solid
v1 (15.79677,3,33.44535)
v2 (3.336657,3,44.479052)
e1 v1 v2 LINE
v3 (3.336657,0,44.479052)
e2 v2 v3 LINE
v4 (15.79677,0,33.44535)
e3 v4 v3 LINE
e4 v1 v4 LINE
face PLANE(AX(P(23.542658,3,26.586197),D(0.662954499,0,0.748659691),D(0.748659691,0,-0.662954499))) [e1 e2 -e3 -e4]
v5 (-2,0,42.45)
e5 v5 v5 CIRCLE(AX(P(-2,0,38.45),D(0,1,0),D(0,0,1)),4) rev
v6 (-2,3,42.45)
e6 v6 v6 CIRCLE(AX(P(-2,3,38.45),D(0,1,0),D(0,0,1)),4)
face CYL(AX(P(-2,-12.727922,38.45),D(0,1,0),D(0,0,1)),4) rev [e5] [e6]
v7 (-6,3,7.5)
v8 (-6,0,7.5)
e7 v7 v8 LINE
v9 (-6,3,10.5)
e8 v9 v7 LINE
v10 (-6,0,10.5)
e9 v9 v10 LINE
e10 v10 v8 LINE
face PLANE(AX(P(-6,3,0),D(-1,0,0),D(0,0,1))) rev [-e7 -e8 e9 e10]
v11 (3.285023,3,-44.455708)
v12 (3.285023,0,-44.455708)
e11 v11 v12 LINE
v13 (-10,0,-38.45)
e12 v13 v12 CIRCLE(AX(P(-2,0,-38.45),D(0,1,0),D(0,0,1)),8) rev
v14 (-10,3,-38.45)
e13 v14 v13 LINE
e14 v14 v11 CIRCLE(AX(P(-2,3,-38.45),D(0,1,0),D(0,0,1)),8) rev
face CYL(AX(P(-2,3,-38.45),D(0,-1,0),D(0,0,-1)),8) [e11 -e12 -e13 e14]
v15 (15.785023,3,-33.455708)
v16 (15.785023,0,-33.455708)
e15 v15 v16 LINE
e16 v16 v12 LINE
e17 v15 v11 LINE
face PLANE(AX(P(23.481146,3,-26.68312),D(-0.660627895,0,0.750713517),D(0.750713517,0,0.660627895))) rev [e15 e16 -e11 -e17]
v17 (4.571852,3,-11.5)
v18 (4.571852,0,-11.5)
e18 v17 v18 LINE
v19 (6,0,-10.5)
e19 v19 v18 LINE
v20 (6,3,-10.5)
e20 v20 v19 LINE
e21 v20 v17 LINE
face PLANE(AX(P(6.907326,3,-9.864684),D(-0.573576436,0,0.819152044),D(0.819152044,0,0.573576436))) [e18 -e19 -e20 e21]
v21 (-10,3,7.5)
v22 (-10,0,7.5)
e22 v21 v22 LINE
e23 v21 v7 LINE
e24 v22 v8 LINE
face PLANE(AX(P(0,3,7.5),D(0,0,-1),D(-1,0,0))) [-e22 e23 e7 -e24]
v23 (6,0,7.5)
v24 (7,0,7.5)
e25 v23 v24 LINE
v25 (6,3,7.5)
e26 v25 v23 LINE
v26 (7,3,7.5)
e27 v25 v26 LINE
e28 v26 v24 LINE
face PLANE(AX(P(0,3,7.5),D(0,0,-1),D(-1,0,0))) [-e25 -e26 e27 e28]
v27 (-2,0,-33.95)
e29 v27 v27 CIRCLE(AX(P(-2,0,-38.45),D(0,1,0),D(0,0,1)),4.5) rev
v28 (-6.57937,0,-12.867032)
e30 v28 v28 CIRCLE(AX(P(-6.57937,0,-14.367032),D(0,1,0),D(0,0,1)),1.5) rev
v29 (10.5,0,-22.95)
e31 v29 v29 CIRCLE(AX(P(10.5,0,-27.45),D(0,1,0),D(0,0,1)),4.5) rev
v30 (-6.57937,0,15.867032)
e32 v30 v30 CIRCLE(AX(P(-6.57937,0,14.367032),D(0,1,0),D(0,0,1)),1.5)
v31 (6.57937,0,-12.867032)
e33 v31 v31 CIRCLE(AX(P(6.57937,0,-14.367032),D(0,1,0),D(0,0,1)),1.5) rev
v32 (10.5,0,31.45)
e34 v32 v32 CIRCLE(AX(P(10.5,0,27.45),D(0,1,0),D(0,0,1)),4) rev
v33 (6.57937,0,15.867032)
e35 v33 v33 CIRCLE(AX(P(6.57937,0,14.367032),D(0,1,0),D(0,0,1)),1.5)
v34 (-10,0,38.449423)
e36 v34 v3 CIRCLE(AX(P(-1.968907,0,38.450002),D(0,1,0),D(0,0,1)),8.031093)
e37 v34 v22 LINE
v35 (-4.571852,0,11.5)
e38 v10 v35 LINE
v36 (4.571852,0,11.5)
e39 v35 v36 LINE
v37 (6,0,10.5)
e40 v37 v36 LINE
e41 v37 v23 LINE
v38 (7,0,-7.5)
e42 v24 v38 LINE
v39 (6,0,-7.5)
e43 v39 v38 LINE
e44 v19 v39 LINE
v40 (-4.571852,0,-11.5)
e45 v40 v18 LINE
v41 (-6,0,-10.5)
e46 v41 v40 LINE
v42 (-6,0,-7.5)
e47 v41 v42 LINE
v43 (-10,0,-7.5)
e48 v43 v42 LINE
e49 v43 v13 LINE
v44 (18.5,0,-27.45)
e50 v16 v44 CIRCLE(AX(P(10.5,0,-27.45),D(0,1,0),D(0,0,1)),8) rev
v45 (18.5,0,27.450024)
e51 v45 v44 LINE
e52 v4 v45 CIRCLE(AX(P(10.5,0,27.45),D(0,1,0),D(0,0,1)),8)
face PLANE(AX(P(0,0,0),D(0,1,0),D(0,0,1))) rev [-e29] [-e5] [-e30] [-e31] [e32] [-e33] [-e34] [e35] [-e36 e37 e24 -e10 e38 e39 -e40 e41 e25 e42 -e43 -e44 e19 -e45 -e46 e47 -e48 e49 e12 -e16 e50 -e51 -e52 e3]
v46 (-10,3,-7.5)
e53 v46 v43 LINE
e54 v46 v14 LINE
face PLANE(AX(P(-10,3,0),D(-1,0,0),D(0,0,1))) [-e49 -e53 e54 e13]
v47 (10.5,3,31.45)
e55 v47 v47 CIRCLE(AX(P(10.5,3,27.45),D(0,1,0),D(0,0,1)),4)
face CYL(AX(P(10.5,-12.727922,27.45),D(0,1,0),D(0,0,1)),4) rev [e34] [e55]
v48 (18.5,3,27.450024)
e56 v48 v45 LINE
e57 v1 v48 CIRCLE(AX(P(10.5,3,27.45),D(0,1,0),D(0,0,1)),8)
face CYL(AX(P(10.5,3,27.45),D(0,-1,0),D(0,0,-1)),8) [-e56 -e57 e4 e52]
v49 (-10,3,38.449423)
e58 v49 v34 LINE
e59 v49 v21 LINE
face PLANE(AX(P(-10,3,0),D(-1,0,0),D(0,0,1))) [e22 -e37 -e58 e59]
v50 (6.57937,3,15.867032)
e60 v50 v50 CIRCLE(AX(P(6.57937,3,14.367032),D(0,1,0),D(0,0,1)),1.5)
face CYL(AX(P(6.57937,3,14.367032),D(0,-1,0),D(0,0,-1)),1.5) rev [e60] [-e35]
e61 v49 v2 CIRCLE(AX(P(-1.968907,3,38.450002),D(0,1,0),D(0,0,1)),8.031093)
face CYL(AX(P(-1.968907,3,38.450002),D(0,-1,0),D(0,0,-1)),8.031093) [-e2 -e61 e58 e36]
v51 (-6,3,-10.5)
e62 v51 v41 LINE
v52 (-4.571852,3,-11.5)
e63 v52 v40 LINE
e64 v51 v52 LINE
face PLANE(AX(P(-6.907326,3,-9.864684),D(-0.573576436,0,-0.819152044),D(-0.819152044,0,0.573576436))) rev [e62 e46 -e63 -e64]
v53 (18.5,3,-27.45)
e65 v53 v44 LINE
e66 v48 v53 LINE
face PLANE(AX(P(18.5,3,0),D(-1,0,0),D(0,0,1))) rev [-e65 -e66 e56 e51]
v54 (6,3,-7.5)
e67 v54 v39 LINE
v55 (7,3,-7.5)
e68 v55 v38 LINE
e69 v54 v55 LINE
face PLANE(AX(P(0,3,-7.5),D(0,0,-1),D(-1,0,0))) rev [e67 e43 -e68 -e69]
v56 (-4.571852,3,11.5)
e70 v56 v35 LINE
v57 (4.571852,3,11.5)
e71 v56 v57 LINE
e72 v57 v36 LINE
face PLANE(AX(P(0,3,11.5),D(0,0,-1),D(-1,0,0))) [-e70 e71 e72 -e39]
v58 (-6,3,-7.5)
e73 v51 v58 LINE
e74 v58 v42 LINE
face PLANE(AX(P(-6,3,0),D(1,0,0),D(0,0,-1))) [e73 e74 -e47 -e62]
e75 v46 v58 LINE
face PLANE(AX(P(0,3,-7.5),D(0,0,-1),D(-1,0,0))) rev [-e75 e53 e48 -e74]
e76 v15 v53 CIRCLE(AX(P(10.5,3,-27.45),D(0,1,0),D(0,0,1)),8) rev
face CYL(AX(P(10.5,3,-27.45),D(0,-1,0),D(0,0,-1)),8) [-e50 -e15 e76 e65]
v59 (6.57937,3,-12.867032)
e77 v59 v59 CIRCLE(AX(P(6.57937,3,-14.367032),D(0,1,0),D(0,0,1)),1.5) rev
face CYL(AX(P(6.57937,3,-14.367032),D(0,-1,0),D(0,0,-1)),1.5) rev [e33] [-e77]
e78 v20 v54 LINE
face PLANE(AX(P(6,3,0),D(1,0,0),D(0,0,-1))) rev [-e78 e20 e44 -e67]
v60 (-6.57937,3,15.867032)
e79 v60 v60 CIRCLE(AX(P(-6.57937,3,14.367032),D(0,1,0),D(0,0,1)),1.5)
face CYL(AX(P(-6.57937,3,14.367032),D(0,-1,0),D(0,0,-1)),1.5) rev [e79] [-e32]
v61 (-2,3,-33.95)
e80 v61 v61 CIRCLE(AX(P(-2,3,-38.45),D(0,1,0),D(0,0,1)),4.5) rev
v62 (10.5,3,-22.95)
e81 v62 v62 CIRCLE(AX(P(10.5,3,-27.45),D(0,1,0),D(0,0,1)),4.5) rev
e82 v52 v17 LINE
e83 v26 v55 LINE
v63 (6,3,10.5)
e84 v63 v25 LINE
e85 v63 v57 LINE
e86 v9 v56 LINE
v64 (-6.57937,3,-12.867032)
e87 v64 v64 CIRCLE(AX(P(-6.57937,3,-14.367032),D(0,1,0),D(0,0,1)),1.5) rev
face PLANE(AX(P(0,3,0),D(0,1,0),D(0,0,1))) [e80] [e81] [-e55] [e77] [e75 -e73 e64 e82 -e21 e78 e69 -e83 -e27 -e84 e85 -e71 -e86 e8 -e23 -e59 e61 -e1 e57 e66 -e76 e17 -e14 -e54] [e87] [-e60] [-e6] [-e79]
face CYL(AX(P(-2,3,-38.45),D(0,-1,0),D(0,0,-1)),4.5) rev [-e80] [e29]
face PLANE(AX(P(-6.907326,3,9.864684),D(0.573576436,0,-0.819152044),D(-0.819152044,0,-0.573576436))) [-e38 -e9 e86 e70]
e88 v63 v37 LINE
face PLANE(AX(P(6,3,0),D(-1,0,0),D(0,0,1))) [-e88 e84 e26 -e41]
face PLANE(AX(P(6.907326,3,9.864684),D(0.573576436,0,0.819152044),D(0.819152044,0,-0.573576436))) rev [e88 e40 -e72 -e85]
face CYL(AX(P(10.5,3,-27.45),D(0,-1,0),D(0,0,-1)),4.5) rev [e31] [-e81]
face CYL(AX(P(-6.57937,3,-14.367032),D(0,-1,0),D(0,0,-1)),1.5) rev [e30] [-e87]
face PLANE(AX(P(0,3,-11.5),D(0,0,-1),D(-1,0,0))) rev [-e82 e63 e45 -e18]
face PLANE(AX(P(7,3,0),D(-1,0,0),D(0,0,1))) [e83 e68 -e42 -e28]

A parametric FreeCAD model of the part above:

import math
import FreeCAD as App
import Part
import Sketcher
from FreeCAD import Vector
Q = App.Units.Quantity

doc = App.newDocument("Part")
body = doc.addObject("PartDesign::Body", "Body")

# Sketch on XZ plane
sketch1 = body.newObject("Sketcher::SketchObject", "Sketch")
sketch1.AttachmentSupport = (doc.getObject("XZ_Plane"), [""])
sketch1.MapMode = "FlatFace"
sketch1.addGeometry([
    Part.LineSegment(Vector(-6, 7.5, 0), Vector(-10, 7.5, 0)),  # 0
    Part.LineSegment(Vector(-10, 7.5, 0), Vector(-10, 38.4, 0)),  # 1
    Part.ArcOfCircle(Part.Circle(Vector(-2, 38.5, 0), Vector(0, 0, 1), 8), math.radians(49), math.radians(180)),  # 2
    Part.LineSegment(Vector(3.3, 44.5, 0), Vector(15.8, 33.4, 0)),  # 3
    Part.ArcOfCircle(Part.Circle(Vector(10.5, 27.4, 0), Vector(0, 0, 1), 8), math.radians(0), math.radians(49)),  # 4
    Part.LineSegment(Vector(18.5, 27.5, 0), Vector(18.5, -27.4, 0)),  # 5
    Part.ArcOfCircle(Part.Circle(Vector(10.5, -27.4, 0), Vector(0, 0, 1), 8), math.radians(-49), math.radians(0)),  # 6
    Part.LineSegment(Vector(15.8, -33.5, 0), Vector(3.3, -44.5, 0)),  # 7
    Part.ArcOfCircle(Part.Circle(Vector(-2, -38.4, 0), Vector(0, 0, 1), 8), math.radians(-180), math.radians(-49)),  # 8
    Part.LineSegment(Vector(-10, -38.5, 0), Vector(-10, -7.5, 0)),  # 9
    Part.LineSegment(Vector(-10, -7.5, 0), Vector(-6, -7.5, 0)),  # 10
    Part.LineSegment(Vector(-6, -7.5, 0), Vector(-6, -10.5, 0)),  # 11
    Part.LineSegment(Vector(-6, -10.5, 0), Vector(-4.6, -11.5, 0)),  # 12
    Part.LineSegment(Vector(-4.6, -11.5, 0), Vector(4.6, -11.5, 0)),  # 13
    Part.LineSegment(Vector(4.6, -11.5, 0), Vector(6, -10.5, 0)),  # 14
    Part.LineSegment(Vector(6, -10.5, 0), Vector(6, -7.5, 0)),  # 15
    Part.LineSegment(Vector(6, -7.5, 0), Vector(7, -7.5, 0)),  # 16
    Part.LineSegment(Vector(7, -7.5, 0), Vector(7, 7.5, 0)),  # 17
    Part.LineSegment(Vector(7, 7.5, 0), Vector(6, 7.5, 0)),  # 18
    Part.LineSegment(Vector(6, 7.5, 0), Vector(6, 10.5, 0)),  # 19
    Part.LineSegment(Vector(6, 10.5, 0), Vector(4.6, 11.5, 0)),  # 20
    Part.LineSegment(Vector(4.6, 11.5, 0), Vector(-4.6, 11.5, 0)),  # 21
    Part.LineSegment(Vector(-4.6, 11.5, 0), Vector(-6, 10.5, 0)),  # 22
    Part.LineSegment(Vector(-6, 10.5, 0), Vector(-6, 7.5, 0)),  # 23
    Part.Circle(Vector(-2, 38.5, 0), Vector(0, 0, 1), 4.5),  # 24
    Part.Circle(Vector(-6.6, 14.4, 0), Vector(0, 0, 1), 1.5),  # 25
    Part.Circle(Vector(10.5, 27.4, 0), Vector(0, 0, 1), 4.5),  # 26
    Part.Circle(Vector(6.6, 14.4, 0), Vector(0, 0, 1), 1.5),  # 27
    Part.Circle(Vector(-6.6, -14.4, 0), Vector(0, 0, 1), 1.5),  # 28
    Part.Circle(Vector(-2, -38.5, 0), Vector(0, 0, 1), 4.5),  # 29
    Part.Circle(Vector(6.6, -14.4, 0), Vector(0, 0, 1), 1.5),  # 30
    Part.Circle(Vector(10.5, -27.4, 0), Vector(0, 0, 1), 4.5),  # 31
], False)
sketch1.addConstraint([
    Sketcher.Constraint("Coincident", 0, 2, 1, 1),
    Sketcher.Constraint("Coincident", 1, 2, 2, 2),
    Sketcher.Constraint("Coincident", 2, 1, 3, 1),
    Sketcher.Constraint("Coincident", 3, 2, 4, 2),
    Sketcher.Constraint("Coincident", 4, 1, 5, 1),
    Sketcher.Constraint("Tangent", 5, 2, 6, 2),
    Sketcher.Constraint("Tangent", 6, 1, 7, 1),
    Sketcher.Constraint("Tangent", 7, 2, 8, 2),
    Sketcher.Constraint("Tangent", 8, 1, 9, 1),
    Sketcher.Constraint("Coincident", 9, 2, 10, 1),
    Sketcher.Constraint("Coincident", 10, 2, 11, 1),
    Sketcher.Constraint("Coincident", 11, 2, 12, 1),
    Sketcher.Constraint("Coincident", 12, 2, 13, 1),
    Sketcher.Constraint("Coincident", 13, 2, 14, 1),
    Sketcher.Constraint("Coincident", 14, 2, 15, 1),
    Sketcher.Constraint("Coincident", 15, 2, 16, 1),
    Sketcher.Constraint("Coincident", 16, 2, 17, 1),
    Sketcher.Constraint("Coincident", 17, 2, 18, 1),
    Sketcher.Constraint("Coincident", 18, 2, 19, 1),
    Sketcher.Constraint("Coincident", 19, 2, 20, 1),
    Sketcher.Constraint("Coincident", 20, 2, 21, 1),
    Sketcher.Constraint("Coincident", 21, 2, 22, 1),
    Sketcher.Constraint("Coincident", 22, 2, 23, 1),
    Sketcher.Constraint("Coincident", 23, 2, 0, 1),
    Sketcher.Constraint("Horizontal", 0),
    Sketcher.Constraint("Vertical", 1),
    Sketcher.Constraint("Vertical", 5),
    Sketcher.Constraint("Vertical", 9),
    Sketcher.Constraint("Horizontal", 10),
    Sketcher.Constraint("Vertical", 11),
    Sketcher.Constraint("Horizontal", 13),
    Sketcher.Constraint("Vertical", 15),
    Sketcher.Constraint("Horizontal", 16),
    Sketcher.Constraint("Vertical", 17),
    Sketcher.Constraint("Horizontal", 18),
    Sketcher.Constraint("Vertical", 19),
    Sketcher.Constraint("Horizontal", 21),
    Sketcher.Constraint("Vertical", 23),
    Sketcher.Constraint("Coincident", 26, 3, 4, 3),
    Sketcher.Constraint("Coincident", 29, 3, 8, 3),
    Sketcher.Constraint("Coincident", 31, 3, 6, 3),
    Sketcher.Constraint("Equal", 4, 6),
    Sketcher.Constraint("Equal", 6, 8),
    Sketcher.Constraint("Equal", 24, 26),
    Sketcher.Constraint("Equal", 25, 27),
    Sketcher.Constraint("Equal", 27, 28),
    Sketcher.Constraint("Equal", 26, 29),
    Sketcher.Constraint("Equal", 28, 30),
    Sketcher.Constraint("Equal", 29, 31),
    Sketcher.Constraint("Symmetric", 27, 3, 28, 3, -1, 1),
    Sketcher.Constraint("Symmetric", 25, 3, 30, 3, -1, 1),
    Sketcher.Constraint("Symmetric", 10, 2, 18, 2, -1, 1),
    Sketcher.Constraint("Symmetric", 12, 2, 20, 2, -1, 1),
    Sketcher.Constraint("Symmetric", 14, 2, 22, 2, -1, 1),
    Sketcher.Constraint("Symmetric", 25, 3, 27, 3, -2),
    Sketcher.Constraint("Symmetric", 11, 2, 14, 2, -2),
    Sketcher.Constraint("Symmetric", 8, 3, 24, 3, -1),
    Sketcher.Constraint("Symmetric", 0, 2, 9, 2, -1),
    Sketcher.Constraint("Parallel", 12, 20),
    Sketcher.Constraint("Parallel", 14, 22),
    Sketcher.Constraint("Horizontal", 10, 2, 15, 2),
    Sketcher.Constraint("Vertical", 13, 2, 20, 2),
    Sketcher.Constraint("Diameter", 24, 9.0),
    Sketcher.Constraint("Diameter", 25, 3.0),
    Sketcher.Constraint("Radius", 4, 8.0),
    Sketcher.Constraint("DistanceX", 0, 2, 0, 1, 4.0),
    Sketcher.Constraint("DistanceX", 16, 1, 16, 2, 1.0),
    Sketcher.Constraint("DistanceY", 11, 2, 11, 1, 3.0),
    Sketcher.Constraint("DistanceY", 17, 1, 17, 2, 15.0),
    Sketcher.Constraint("Angle", 12, Q("-35 deg")),
    Sketcher.Constraint("DistanceX", 8, 3, -1, 1, 2.0),
    Sketcher.Constraint("DistanceY", 8, 3, 6, 3, 11.0),
    Sketcher.Constraint("DistanceY", 4, 3, 24, 3, 11.0),
    Sketcher.Constraint("DistanceY", 12, 2, 11, 2, 1.0),
    Sketcher.Constraint("DistanceY", 9, 1, 9, 2, 30.95),
    Sketcher.Constraint("DistanceX", -1, 1, 4, 3, 10.5),
    Sketcher.Constraint("Radius", 2, 8.031093),
    Sketcher.Constraint("DistanceY", 1, 1, 1, 2, 30.949423),
    Sketcher.Constraint("DistanceY", 5, 2, 5, 1, 54.900024),
    Sketcher.Constraint("DistanceX", 25, 3, -1, 1, 6.57937),
    Sketcher.Constraint("DistanceX", -1, 1, 3, 2, 15.79677),
    Sketcher.Constraint("DistanceY", 25, 3, 2, 3, 24.08297),
    Sketcher.Constraint("DistanceY", 1, 2, 2, 3, 0.000579),
    Sketcher.Constraint("DistanceY", 2, 3, 2, 1, 6.02905),
])
pad1 = body.newObject("PartDesign::Pad", "Pad")
pad1.Profile = sketch1
pad1.Length = 3
pad1.Reversed = True

# Sketch on XZ plane
sketch2 = body.newObject("Sketcher::SketchObject", "Sketch001")
sketch2.AttachmentSupport = (doc.getObject("XZ_Plane"), [""])
sketch2.MapMode = "FlatFace"
sketch2.addGeometry([
    Part.Circle(Vector(-2, 38.5, 0), Vector(0, 0, 1), 4.5),
    Part.Circle(Vector(-2, 38.5, 0), Vector(0, 0, 1), 4),
    Part.Circle(Vector(10.5, 27.4, 0), Vector(0, 0, 1), 4.5),
    Part.Circle(Vector(10.5, 27.4, 0), Vector(0, 0, 1), 4),
], False)
sketch2.addConstraint([
    Sketcher.Constraint("Coincident", 1, 3, 0, 3),
    Sketcher.Constraint("Coincident", 3, 3, 2, 3),
    Sketcher.Constraint("Equal", 0, 2),
    Sketcher.Constraint("Equal", 1, 3),
    Sketcher.Constraint("Diameter", 0, 9.0),
    Sketcher.Constraint("Diameter", 1, 8.0),
    Sketcher.Constraint("DistanceX", 0, 3, -1, 1, 2.0),
    Sketcher.Constraint("DistanceY", 2, 3, 0, 3, 11.0),
    Sketcher.Constraint("DistanceX", -1, 1, 2, 3, 10.5),
    Sketcher.Constraint("DistanceY", -1, 1, 0, 3, 38.45),
])
pad2 = body.newObject("PartDesign::Pad", "Pad001")
pad2.Profile = sketch2
pad2.Length = 3
pad2.Reversed = True

doc.recompute()
